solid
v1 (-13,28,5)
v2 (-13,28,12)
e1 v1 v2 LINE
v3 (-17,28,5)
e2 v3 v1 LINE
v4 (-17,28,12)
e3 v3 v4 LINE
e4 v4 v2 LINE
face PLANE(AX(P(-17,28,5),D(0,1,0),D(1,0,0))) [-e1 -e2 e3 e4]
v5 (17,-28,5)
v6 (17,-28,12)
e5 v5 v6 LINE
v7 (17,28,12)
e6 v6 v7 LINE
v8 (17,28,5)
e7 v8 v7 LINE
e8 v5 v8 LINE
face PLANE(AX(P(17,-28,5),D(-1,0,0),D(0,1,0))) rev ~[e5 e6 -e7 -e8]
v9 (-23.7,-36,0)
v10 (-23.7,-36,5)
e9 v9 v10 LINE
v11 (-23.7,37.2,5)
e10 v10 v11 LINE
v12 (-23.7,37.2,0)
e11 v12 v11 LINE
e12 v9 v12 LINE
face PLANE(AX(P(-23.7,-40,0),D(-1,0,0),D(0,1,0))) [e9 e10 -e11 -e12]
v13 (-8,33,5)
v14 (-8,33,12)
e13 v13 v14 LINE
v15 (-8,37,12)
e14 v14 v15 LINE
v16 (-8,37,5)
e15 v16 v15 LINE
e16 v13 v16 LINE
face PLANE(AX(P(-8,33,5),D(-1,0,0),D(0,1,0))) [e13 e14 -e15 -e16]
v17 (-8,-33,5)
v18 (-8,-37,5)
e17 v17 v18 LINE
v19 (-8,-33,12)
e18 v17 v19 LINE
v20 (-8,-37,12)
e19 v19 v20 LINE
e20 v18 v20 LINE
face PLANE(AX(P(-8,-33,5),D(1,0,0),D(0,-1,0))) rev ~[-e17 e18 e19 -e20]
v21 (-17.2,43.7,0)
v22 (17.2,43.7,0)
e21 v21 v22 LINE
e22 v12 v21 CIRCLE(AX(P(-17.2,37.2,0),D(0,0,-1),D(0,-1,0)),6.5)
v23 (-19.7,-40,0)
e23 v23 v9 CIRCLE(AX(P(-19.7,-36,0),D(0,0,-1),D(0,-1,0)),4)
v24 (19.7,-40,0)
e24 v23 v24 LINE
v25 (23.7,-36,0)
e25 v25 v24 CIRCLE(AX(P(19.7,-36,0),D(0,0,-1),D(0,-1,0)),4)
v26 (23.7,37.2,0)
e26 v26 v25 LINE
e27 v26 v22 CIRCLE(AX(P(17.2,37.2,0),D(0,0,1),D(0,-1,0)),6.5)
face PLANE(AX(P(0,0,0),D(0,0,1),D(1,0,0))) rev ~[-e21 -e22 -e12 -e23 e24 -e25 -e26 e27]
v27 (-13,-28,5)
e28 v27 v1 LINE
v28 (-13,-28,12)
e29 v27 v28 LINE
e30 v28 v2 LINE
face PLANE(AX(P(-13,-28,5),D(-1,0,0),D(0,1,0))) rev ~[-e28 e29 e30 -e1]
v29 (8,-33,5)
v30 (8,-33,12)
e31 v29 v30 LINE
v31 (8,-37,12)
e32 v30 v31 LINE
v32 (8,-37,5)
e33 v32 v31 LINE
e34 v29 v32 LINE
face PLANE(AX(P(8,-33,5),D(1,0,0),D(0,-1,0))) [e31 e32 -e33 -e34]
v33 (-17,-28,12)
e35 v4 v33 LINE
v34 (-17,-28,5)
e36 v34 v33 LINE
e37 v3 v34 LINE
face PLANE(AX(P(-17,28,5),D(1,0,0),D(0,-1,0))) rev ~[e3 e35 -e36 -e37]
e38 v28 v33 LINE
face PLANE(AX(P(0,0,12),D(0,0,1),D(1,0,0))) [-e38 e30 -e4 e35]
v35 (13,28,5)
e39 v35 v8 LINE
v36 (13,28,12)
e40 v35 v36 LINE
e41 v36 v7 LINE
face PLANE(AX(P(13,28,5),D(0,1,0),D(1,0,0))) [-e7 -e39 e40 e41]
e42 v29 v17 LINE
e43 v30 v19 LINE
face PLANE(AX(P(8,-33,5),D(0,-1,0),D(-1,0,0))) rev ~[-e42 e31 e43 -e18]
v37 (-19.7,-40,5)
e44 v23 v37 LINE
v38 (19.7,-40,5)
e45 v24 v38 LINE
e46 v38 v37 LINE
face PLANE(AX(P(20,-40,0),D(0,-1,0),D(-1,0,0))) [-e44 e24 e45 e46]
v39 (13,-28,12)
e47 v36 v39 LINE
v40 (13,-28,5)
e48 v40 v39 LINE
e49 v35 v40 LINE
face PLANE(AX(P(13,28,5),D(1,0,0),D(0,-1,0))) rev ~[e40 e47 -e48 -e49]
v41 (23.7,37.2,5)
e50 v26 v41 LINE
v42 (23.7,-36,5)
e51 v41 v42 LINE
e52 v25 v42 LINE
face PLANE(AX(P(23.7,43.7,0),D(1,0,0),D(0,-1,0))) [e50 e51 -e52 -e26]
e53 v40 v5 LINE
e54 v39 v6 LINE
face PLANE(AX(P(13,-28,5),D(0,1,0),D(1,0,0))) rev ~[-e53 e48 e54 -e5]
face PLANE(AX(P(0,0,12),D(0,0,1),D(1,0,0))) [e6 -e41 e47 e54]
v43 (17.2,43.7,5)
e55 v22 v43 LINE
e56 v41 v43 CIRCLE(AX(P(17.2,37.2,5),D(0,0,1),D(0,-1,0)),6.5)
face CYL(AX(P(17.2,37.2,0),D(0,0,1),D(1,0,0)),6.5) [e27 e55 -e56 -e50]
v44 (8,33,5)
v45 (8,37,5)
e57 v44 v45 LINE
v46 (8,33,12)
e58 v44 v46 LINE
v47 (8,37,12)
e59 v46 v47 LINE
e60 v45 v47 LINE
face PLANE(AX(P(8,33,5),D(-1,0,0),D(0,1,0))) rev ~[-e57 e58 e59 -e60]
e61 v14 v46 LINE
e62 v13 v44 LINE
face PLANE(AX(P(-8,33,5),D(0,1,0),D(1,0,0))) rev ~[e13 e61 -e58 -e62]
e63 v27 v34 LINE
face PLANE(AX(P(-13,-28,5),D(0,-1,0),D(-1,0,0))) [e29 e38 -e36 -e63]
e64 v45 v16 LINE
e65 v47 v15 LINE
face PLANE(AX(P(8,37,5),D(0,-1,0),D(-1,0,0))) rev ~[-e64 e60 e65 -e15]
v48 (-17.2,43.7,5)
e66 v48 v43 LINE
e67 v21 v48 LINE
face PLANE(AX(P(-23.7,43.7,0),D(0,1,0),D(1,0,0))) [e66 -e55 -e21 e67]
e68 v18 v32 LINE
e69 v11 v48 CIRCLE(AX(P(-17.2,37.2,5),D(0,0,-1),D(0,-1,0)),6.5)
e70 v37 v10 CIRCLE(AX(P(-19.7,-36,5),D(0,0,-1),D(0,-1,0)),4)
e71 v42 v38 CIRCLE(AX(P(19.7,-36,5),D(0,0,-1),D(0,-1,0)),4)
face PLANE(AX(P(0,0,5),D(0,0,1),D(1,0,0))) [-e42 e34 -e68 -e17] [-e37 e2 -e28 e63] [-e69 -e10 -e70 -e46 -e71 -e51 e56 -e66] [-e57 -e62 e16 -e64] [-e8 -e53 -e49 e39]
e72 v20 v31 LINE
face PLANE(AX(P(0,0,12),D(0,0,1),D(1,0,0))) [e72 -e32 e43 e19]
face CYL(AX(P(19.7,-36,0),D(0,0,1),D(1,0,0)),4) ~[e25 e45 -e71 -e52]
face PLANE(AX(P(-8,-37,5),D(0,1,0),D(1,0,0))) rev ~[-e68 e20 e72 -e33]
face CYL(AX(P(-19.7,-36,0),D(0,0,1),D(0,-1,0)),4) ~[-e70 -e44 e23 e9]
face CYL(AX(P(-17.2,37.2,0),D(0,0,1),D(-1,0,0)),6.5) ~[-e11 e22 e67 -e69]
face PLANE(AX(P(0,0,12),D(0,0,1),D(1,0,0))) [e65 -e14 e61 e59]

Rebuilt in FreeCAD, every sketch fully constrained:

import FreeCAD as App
import Part
import Sketcher


def edges_at(feature, points):
    """Names of the edges that pass closest to the given points."""
    edges = feature.Shape.Edges
    near = lambda p: min(range(len(edges)), key=lambda i: edges[i].distToShape(Part.Vertex(*p))[0])
    return sorted({f"Edge{near(p) + 1}" for p in points})


def add_polygon(sketch, points):
    """Adds a closed chain of lines whose ends are joined by coincident constraints."""
    first, n = sketch.GeometryCount, len(points)
    for a, b in zip(points, points[1:] + points[:1]):
        sketch.addGeometry(Part.LineSegment(App.Vector(*a, 0), App.Vector(*b, 0)), False)
    for i in range(n):
        sketch.addConstraint(Sketcher.Constraint("Coincident", first + i, 2, first + (i + 1) % n, 1))

doc = App.newDocument("Part")
body = doc.addObject("PartDesign::Body", "Body")

sketch1 = body.newObject("Sketcher::SketchObject", "Sketch")
sketch1.AttachmentSupport = (doc.getObject("XY_Plane"), [""])
sketch1.MapMode = "FlatFace"
add_polygon(sketch1, [(24, -40), (24, 44), (-24, 44), (-24, -40)])
sketch1.addConstraint([
    Sketcher.Constraint("Vertical", 0),
    Sketcher.Constraint("Horizontal", 1),
    Sketcher.Constraint("Vertical", 2),
    Sketcher.Constraint("Horizontal", 3),
    Sketcher.Constraint("DistanceY", 2, 2, -1, 1, 40.0),
    Sketcher.Constraint("DistanceX", 1, 2, 1, 1, 47.4),
    Sketcher.Constraint("DistanceY", 0, 1, 0, 2, 83.7),
    Sketcher.Constraint("DistanceX", -1, 1, 0, 2, 23.7),
])
pad1 = body.newObject("PartDesign::Pad", "Pad")
pad1.Profile = sketch1
pad1.Length = 5

sketch2 = body.newObject("Sketcher::SketchObject", "Sketch001")
sketch2.AttachmentSupport = (doc.getObject("XY_Plane"), [""])
sketch2.MapMode = "FlatFace"
sketch2.AttachmentOffset = App.Placement(App.Vector(0, 0, 5), App.Rotation())
add_polygon(sketch2, [(8, 33), (8, 37), (-8, 37), (-8, 33)])
add_polygon(sketch2, [(17, -28), (17, 28), (13, 28), (13, -28)])
add_polygon(sketch2, [(-13, 28), (-17, 28), (-17, -28), (-13, -28)])
add_polygon(sketch2, [(-8, -37), (8, -37), (8, -33), (-8, -33)])
sketch2.addConstraint([
    Sketcher.Constraint("Vertical", 0),
    Sketcher.Constraint("Horizontal", 1),
    Sketcher.Constraint("Vertical", 2),
    Sketcher.Constraint("Horizontal", 3),
    Sketcher.Constraint("Vertical", 4),
    Sketcher.Constraint("Horizontal", 5),
    Sketcher.Constraint("Vertical", 6),
    Sketcher.Constraint("Horizontal", 7),
    Sketcher.Constraint("Horizontal", 8),
    Sketcher.Constraint("Vertical", 9),
    Sketcher.Constraint("Horizontal", 10),
    Sketcher.Constraint("Vertical", 11),
    Sketcher.Constraint("Horizontal", 12),
    Sketcher.Constraint("Vertical", 13),
    Sketcher.Constraint("Horizontal", 14),
    Sketcher.Constraint("Vertical", 15),
    Sketcher.Constraint("Symmetric", 7, 2, 8, 2, -1, 1),
    Sketcher.Constraint("Symmetric", 5, 2, 10, 2, -1, 1),
    Sketcher.Constraint("Symmetric", 1, 2, 12, 2, -1, 1),
    Sketcher.Constraint("Symmetric", 3, 2, 14, 2, -1, 1),
    Sketcher.Constraint("Horizontal", 5, 2, 8, 2),
    Sketcher.Constraint("Vertical", 3, 2, 12, 2),
    Sketcher.Constraint("Equal", 10, 0),
    Sketcher.Constraint("DistanceX", 5, 2, 5, 1, 4.0),
    Sketcher.Constraint("DistanceY", 4, 2, 3, 2, 5.0),
    Sketcher.Constraint("DistanceX", 3, 2, 5, 2, 5.0),
    Sketcher.Constraint("DistanceX", 1, 2, 1, 1, 16.0),
    Sketcher.Constraint("DistanceY", 4, 1, 4, 2, 56.0),
])
pad2 = body.newObject("PartDesign::Pad", "Pad001")
pad2.Profile = sketch2
pad2.Length = 7
doc.recompute()

fillet = body.newObject("PartDesign::Fillet", "Fillet")
fillet.Base = (pad2, edges_at(pad2, [(23.7, 43.7, 2.5), (-23.7, 43.7, 2.5)]))
fillet.Radius = 6.5
doc.recompute()

fillet2 = body.newObject("PartDesign::Fillet", "Fillet001")
fillet2.Base = (fillet, edges_at(fillet, [(-23.7, -40, 2.5), (23.7, -40, 2.5)]))
fillet2.Radius = 4

doc.recompute()
